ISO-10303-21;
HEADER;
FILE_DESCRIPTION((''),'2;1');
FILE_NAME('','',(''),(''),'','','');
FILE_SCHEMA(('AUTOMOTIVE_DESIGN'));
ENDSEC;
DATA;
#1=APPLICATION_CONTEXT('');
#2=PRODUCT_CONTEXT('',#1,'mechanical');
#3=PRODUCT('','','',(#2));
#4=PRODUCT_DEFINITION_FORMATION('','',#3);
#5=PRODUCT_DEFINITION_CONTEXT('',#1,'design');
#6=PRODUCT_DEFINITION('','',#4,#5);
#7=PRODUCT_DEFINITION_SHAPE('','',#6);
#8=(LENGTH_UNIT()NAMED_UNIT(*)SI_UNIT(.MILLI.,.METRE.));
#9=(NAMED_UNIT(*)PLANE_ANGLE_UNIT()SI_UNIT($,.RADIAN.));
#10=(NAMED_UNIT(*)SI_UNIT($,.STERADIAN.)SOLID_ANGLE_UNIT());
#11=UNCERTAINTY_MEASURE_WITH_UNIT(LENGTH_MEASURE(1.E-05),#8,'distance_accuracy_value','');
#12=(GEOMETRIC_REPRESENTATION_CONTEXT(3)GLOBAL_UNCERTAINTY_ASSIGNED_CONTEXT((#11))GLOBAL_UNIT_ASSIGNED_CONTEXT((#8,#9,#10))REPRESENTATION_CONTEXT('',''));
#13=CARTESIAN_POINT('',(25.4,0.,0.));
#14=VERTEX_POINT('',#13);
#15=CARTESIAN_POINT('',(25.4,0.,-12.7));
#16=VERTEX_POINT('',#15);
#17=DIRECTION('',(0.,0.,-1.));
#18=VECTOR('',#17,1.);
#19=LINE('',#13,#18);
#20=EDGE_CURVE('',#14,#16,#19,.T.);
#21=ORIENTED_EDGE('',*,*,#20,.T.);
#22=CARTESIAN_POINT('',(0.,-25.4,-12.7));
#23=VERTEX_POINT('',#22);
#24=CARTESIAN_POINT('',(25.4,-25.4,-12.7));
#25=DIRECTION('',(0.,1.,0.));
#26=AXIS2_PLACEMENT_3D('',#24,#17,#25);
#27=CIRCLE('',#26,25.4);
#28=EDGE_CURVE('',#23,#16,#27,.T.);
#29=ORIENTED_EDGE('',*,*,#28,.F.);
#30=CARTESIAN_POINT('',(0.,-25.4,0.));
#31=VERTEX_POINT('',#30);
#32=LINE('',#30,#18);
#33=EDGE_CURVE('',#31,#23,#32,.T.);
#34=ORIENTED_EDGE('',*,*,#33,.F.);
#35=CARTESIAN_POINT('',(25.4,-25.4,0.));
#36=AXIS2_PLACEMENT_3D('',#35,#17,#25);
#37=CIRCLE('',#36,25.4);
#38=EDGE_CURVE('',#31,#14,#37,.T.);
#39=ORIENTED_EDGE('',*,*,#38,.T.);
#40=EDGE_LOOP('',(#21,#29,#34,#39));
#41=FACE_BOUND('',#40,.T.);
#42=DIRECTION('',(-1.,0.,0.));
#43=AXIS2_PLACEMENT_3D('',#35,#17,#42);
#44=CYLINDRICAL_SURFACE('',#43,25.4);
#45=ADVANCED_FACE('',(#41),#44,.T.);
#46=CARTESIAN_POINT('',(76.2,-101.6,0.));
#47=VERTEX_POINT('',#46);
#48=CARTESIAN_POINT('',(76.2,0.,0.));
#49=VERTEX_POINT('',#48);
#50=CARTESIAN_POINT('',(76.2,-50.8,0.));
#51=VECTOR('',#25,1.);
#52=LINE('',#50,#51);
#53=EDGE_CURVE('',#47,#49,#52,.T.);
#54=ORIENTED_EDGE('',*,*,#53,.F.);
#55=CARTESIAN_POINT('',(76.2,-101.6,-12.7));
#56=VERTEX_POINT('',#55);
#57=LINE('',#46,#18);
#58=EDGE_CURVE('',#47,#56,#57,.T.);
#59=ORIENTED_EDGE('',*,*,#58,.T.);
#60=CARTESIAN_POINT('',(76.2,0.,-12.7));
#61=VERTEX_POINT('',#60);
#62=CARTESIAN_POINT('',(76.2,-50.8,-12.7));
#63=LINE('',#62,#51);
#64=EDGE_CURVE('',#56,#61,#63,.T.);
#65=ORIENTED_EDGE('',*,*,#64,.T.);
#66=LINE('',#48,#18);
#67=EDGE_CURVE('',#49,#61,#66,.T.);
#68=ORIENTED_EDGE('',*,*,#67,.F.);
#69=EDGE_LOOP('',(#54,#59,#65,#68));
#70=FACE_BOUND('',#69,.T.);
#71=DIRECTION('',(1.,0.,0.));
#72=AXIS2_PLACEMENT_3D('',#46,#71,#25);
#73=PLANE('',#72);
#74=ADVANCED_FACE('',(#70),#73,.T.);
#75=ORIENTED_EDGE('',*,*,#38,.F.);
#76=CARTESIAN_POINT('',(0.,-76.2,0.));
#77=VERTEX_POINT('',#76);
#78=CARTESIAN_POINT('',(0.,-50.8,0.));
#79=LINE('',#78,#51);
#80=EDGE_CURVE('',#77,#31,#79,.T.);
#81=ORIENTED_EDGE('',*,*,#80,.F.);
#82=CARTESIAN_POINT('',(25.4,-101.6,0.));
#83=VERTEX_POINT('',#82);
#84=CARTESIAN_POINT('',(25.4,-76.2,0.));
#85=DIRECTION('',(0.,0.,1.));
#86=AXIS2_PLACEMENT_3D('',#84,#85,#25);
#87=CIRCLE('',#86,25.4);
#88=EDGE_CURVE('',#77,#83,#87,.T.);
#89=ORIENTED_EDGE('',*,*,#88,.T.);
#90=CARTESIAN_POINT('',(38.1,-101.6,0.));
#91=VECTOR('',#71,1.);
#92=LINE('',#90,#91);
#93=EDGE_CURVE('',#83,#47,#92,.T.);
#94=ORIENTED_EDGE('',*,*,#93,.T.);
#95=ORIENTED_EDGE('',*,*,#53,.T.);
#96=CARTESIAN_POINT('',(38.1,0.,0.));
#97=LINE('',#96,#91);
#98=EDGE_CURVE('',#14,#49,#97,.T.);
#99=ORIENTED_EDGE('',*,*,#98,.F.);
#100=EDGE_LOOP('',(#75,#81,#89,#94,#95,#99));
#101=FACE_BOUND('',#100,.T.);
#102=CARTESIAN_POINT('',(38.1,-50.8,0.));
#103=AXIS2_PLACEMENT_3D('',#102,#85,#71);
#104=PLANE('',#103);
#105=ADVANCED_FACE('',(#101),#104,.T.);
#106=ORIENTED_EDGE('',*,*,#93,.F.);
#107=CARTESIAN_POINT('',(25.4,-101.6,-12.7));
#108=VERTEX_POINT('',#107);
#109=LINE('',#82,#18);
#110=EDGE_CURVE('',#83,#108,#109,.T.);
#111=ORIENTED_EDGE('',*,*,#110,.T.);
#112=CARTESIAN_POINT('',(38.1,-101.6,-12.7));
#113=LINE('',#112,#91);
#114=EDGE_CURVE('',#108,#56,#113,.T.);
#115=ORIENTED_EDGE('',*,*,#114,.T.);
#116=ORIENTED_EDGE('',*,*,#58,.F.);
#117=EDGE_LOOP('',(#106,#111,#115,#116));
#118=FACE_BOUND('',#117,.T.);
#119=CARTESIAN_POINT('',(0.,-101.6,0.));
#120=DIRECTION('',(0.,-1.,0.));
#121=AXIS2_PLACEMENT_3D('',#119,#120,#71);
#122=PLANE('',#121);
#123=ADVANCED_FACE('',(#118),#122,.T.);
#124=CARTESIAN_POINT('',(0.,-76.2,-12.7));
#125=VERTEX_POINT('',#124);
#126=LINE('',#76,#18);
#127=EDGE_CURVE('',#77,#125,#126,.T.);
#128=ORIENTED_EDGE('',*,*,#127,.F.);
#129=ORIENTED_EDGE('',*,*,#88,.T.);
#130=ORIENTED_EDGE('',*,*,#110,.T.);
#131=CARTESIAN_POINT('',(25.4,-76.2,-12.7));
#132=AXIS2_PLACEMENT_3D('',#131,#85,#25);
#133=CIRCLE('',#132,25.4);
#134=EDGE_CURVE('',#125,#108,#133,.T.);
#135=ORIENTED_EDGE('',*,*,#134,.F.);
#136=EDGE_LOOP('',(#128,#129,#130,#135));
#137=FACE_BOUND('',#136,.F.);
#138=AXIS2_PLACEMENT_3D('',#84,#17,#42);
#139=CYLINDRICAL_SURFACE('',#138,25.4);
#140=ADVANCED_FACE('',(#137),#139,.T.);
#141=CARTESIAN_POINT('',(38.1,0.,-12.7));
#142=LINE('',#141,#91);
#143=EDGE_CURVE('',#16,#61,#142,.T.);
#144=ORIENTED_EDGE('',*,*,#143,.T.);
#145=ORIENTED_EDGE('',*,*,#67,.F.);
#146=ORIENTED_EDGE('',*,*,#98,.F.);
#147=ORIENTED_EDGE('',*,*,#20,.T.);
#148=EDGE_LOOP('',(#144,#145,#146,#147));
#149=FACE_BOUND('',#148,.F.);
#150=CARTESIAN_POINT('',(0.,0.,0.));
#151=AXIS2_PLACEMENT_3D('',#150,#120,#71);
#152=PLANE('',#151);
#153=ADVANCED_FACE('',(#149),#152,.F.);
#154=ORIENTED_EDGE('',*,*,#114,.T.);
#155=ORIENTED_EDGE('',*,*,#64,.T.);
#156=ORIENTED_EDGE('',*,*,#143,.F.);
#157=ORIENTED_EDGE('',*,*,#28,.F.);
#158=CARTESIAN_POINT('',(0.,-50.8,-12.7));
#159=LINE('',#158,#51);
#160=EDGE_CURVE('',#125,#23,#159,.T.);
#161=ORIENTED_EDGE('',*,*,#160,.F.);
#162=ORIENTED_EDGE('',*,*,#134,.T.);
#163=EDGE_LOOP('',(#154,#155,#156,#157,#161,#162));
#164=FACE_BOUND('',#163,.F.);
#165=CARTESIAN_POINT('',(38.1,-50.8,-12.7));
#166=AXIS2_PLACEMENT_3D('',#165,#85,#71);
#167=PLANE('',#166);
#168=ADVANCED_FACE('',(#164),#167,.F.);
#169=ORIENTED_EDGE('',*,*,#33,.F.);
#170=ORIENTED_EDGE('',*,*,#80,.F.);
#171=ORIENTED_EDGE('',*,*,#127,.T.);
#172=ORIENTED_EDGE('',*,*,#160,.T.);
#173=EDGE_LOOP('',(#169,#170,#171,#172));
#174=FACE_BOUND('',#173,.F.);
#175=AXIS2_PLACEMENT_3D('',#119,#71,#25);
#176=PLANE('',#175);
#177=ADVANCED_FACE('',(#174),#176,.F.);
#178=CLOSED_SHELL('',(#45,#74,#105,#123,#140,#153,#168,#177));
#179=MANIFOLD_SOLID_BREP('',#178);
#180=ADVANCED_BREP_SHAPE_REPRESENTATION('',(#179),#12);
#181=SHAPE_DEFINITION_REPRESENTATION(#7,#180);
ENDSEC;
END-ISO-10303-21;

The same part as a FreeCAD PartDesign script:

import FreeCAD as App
import Part
import Sketcher
from FreeCAD import Vector
Q = App.Units.Quantity


def edges_at(feature, points):
    """Names of the edges that pass closest to the given points."""
    edges = feature.Shape.Edges
    near = lambda p: min(range(len(edges)), key=lambda i: edges[i].distToShape(Part.Vertex(*p))[0])
    return sorted({f"Edge{near(p) + 1}" for p in points})

doc = App.newDocument("Part")
body = doc.addObject("PartDesign::Body", "Body")

# Sketch on XY plane
sketch1 = body.newObject("Sketcher::SketchObject", "Sketch")
sketch1.AttachmentSupport = (doc.getObject("XY_Plane"), [""])
sketch1.MapMode = "FlatFace"
sketch1.addGeometry(Part.LineSegment(Vector(0, 0, 0), Vector(0, -102, 0)), False)
sketch1.addGeometry(Part.LineSegment(Vector(0, -102, 0), Vector(76, -102, 0)), False)
sketch1.addGeometry(Part.LineSegment(Vector(76, -102, 0), Vector(76, 0, 0)), False)
sketch1.addGeometry(Part.LineSegment(Vector(76, 0, 0), Vector(0, 0, 0)), False)
sketch1.addConstraint(Sketcher.Constraint("Coincident", 0, 2, 1, 1))
sketch1.addConstraint(Sketcher.Constraint("Coincident", 1, 2, 2, 1))
sketch1.addConstraint(Sketcher.Constraint("Coincident", 2, 2, 3, 1))
sketch1.addConstraint(Sketcher.Constraint("Coincident", 3, 2, 0, 1))
sketch1.addConstraint(Sketcher.Constraint("Vertical", 0))
sketch1.addConstraint(Sketcher.Constraint("Horizontal", 1))
sketch1.addConstraint(Sketcher.Constraint("Vertical", 2))
sketch1.addConstraint(Sketcher.Constraint("Horizontal", 3))
sketch1.addConstraint(Sketcher.Constraint("Coincident", 3, 2, -1, 1))
sketch1.addConstraint(Sketcher.Constraint("DistanceX", 1, 1, 1, 2, Q("3 in")))
sketch1.addConstraint(Sketcher.Constraint("DistanceY", 0, 2, 0, 1, Q("4 in")))
pad1 = body.newObject("PartDesign::Pad", "Pad")
pad1.Profile = sketch1
pad1.Length = Q("0.5 in")
pad1.Reversed = True
doc.recompute()

fillet = body.newObject("PartDesign::Fillet", "Fillet")
fillet.Base = (pad1, edges_at(pad1, [(0, 0, -6.35), (0, -101.6, -6.35)]))
fillet.Radius = Q("1 in")

doc.recompute()
